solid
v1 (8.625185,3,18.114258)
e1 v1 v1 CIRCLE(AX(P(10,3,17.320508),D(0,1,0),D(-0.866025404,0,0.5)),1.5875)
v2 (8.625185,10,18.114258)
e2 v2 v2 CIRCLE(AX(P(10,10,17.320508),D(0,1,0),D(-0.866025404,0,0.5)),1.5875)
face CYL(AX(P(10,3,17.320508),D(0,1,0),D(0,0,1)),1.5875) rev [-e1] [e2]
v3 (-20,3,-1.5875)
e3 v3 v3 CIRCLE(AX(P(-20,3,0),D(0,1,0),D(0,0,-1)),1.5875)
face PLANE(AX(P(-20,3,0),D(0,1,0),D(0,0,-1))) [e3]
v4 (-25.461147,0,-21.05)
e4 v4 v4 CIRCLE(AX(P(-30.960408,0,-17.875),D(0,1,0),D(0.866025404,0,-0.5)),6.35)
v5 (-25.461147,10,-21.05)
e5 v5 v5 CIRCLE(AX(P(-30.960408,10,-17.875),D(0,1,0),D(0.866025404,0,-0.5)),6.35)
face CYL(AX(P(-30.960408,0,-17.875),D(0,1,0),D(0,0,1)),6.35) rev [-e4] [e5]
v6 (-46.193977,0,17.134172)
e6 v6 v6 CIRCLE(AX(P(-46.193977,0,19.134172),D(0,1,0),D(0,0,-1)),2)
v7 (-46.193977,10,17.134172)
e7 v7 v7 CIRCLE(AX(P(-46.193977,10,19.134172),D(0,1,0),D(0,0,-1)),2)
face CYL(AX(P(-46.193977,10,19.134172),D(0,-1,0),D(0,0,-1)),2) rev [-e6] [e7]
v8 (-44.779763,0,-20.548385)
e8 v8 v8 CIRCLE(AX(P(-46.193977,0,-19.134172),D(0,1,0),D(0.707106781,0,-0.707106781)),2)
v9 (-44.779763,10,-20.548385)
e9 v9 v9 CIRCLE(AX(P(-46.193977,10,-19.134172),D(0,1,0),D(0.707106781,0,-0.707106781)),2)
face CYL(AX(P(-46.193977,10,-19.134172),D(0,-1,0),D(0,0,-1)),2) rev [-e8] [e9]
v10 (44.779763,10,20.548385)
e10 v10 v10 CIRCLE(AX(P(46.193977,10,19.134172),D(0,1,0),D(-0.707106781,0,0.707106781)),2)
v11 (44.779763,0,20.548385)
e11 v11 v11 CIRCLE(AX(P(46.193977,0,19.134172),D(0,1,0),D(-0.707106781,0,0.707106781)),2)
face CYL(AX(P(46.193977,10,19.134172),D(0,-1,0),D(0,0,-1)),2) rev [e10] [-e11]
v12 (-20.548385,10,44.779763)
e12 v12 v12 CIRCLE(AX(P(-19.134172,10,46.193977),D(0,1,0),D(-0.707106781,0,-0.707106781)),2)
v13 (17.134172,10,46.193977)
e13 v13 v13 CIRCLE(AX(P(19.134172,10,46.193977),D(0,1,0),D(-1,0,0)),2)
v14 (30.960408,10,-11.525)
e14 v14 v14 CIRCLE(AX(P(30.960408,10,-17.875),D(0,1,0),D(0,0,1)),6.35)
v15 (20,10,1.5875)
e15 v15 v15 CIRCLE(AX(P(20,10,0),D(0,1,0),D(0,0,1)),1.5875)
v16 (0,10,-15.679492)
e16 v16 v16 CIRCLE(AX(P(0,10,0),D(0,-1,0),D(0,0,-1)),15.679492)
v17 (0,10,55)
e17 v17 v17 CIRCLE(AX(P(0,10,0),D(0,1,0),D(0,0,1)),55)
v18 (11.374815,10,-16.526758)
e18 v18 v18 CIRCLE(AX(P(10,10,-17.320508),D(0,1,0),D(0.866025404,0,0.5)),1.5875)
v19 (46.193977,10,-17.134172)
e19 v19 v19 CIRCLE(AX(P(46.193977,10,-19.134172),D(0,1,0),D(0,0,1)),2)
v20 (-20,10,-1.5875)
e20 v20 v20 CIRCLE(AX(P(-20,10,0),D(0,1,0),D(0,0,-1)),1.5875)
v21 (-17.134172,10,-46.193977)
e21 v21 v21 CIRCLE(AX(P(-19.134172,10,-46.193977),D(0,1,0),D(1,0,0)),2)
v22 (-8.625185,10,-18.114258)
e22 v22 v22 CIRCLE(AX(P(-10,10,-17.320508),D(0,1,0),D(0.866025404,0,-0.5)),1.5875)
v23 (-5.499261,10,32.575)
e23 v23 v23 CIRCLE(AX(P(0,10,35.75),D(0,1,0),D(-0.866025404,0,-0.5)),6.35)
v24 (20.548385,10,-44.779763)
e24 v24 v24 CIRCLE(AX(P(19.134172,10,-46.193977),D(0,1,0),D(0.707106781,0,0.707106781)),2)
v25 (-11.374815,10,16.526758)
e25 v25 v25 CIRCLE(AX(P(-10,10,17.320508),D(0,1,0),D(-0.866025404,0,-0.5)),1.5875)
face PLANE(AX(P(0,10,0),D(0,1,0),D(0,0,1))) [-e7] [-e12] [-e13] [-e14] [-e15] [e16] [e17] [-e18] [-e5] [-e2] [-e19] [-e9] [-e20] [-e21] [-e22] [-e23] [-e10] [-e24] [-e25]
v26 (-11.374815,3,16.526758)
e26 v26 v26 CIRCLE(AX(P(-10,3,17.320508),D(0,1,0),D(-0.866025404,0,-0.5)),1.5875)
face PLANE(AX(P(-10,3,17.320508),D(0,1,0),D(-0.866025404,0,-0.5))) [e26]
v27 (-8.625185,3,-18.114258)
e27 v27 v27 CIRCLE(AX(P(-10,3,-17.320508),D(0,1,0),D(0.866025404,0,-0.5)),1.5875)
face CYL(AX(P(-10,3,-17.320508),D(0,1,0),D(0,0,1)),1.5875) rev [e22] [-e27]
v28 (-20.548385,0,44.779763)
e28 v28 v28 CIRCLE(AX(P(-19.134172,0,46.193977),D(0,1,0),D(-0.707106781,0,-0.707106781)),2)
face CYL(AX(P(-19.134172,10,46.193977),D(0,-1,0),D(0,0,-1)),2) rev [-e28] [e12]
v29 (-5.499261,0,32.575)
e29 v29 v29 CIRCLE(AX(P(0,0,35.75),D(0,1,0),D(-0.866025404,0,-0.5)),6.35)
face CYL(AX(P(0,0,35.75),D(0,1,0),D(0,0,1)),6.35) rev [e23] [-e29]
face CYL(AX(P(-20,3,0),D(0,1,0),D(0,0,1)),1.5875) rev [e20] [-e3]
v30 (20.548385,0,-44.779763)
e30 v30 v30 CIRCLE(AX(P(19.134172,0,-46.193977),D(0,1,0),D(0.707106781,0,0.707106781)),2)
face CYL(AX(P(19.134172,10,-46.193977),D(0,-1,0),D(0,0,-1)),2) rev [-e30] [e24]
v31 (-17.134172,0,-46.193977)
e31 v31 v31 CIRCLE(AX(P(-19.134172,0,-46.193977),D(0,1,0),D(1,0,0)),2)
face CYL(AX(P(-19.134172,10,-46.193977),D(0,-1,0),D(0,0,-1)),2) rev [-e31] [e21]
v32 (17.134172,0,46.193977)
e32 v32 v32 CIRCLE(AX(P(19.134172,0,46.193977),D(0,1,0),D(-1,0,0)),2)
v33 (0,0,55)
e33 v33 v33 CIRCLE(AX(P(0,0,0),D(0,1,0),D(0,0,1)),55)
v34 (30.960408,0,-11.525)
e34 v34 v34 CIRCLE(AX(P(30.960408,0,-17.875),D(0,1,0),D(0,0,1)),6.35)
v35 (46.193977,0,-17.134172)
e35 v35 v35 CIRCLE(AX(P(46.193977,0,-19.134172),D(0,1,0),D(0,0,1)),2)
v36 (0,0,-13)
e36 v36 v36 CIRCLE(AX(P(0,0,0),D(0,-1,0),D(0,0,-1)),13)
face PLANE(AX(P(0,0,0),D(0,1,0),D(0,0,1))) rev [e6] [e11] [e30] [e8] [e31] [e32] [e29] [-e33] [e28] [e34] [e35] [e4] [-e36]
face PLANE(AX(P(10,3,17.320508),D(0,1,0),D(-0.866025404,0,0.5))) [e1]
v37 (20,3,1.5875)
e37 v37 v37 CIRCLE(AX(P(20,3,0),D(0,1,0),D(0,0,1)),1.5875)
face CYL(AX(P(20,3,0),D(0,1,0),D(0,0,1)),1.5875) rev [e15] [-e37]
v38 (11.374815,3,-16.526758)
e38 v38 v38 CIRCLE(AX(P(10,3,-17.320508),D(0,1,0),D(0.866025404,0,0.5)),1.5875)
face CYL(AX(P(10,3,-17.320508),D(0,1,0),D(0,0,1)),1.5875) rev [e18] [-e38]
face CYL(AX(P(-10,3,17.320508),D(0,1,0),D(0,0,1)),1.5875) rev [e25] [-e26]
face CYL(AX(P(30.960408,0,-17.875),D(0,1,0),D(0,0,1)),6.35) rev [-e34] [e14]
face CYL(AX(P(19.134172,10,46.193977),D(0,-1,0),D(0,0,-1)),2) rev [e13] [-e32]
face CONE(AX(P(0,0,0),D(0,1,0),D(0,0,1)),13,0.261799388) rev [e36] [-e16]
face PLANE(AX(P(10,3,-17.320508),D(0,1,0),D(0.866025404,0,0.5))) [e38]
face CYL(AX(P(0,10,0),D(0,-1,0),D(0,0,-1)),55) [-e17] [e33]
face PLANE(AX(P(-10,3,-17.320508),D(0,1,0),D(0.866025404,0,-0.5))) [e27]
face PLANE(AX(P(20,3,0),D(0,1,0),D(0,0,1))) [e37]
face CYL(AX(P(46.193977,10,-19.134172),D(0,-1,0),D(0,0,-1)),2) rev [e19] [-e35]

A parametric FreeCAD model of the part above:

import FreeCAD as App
import Part
import Sketcher
from FreeCAD import Vector
Q = App.Units.Quantity

doc = App.newDocument("Part")
body = doc.addObject("PartDesign::Body", "Body")

sketch1 = doc.addObject("Sketcher::SketchObject", "Sketch")
body.addObject(sketch1)
sketch1.AttachmentSupport = (doc.XZ_Plane, [""])
sketch1.MapMode = "FlatFace"
sketch1.addGeometry(Part.Circle(Vector(0, 0, 0), Vector(0, 0, 1), 55), False)
sketch1.addConstraint([
    Sketcher.Constraint("Coincident", 0, 3, -1, 1),
    Sketcher.Constraint("Diameter", 0, 110.0),
])
pad1 = doc.addObject("PartDesign::Pad", "Pad")
body.addObject(pad1)
pad1.Profile = sketch1
pad1.Length = 10
pad1.Reversed = True

sketch2 = doc.addObject("Sketcher::SketchObject", "Sketch001")
body.addObject(sketch2)
sketch2.AttachmentSupport = (doc.XY_Plane, [""])
sketch2.MapMode = "FlatFace"
sketch2.addGeometry([
    Part.LineSegment(Vector(0, 10, 0), Vector(0, 0, 0)),
    Part.LineSegment(Vector(0, 0, 0), Vector(13, 0, 0)),
    Part.LineSegment(Vector(13, 0, 0), Vector(16, 10, 0)),
    Part.LineSegment(Vector(16, 10, 0), Vector(0, 10, 0)),
], False)
sketch2.addConstraint([
    Sketcher.Constraint("Coincident", 0, 2, 1, 1),
    Sketcher.Constraint("Coincident", 1, 2, 2, 1),
    Sketcher.Constraint("Coincident", 2, 2, 3, 1),
    Sketcher.Constraint("Coincident", 3, 2, 0, 1),
    Sketcher.Constraint("Vertical", 0),
    Sketcher.Constraint("Horizontal", 1),
    Sketcher.Constraint("Horizontal", 3),
    Sketcher.Constraint("Coincident", 0, 2, -1, 1),
    Sketcher.Constraint("DistanceX", 1, 1, 1, 2, 13.0),
    Sketcher.Constraint("DistanceY", 0, 2, 0, 1, 10.0),
    Sketcher.Constraint("Angle", 2, Q("75 deg")),
])
groove = doc.addObject("PartDesign::Groove", "Groove")
body.addObject(groove)
groove.Profile = sketch2
groove.ReferenceAxis = (sketch2, ["V_Axis"])
groove.Angle = 360

sketch3 = doc.addObject("Sketcher::SketchObject", "Sketch002")
body.addObject(sketch3)
sketch3.AttachmentSupport = (doc.XZ_Plane, [""])
sketch3.MapMode = "FlatFace"
sketch3.addGeometry(Part.Circle(Vector(46.2, -19.1, 0), Vector(0, 0, 1), 2), False)
sketch3.addConstraint([
    Sketcher.Constraint("Diameter", 0, 4.0),
    Sketcher.Constraint("DistanceY", 0, 3, -1, 1, 19.134172),
    Sketcher.Constraint("DistanceX", -1, 1, 0, 3, 46.193977),
])
pocket1 = doc.addObject("PartDesign::Pocket", "Pocket")
body.addObject(pocket1)
pocket1.Profile = sketch3
pocket1.Type = "ThroughAll"
doc.recompute()

polarpattern = doc.addObject("PartDesign::PolarPattern", "PolarPattern")
body.addObject(polarpattern)
polarpattern.Originals = [pocket1]
polarpattern.Axis = (doc.Y_Axis, [""])
polarpattern.Angle = 360
polarpattern.Occurrences = 8
body.Tip = polarpattern

sketch4 = doc.addObject("Sketcher::SketchObject", "Sketch003")
body.addObject(sketch4)
sketch4.AttachmentSupport = (doc.XZ_Plane, [""])
sketch4.MapMode = "FlatFace"
sketch4.AttachmentOffset = App.Placement(Vector(0, 0, -10), App.Rotation())
sketch4.addGeometry(Part.Circle(Vector(31, -18, 0), Vector(0, 0, 1), 6), False)
sketch4.addConstraint([
    Sketcher.Constraint("Diameter", 0, 12.7),
    Sketcher.Constraint("DistanceY", 0, 3, -1, 1, 17.875),
    Sketcher.Constraint("DistanceX", -1, 1, 0, 3, 30.960408),
])
pocket2 = doc.addObject("PartDesign::Pocket", "Pocket001")
body.addObject(pocket2)
pocket2.Profile = sketch4
pocket2.Type = "ThroughAll"
pocket2.Reversed = True
doc.recompute()

polarpattern2 = doc.addObject("PartDesign::PolarPattern", "PolarPattern001")
body.addObject(polarpattern2)
polarpattern2.Originals = [pocket2]
polarpattern2.Axis = (doc.Y_Axis, [""])
polarpattern2.Angle = 360
polarpattern2.Occurrences = 3
body.Tip = polarpattern2

sketch5 = doc.addObject("Sketcher::SketchObject", "Sketch004")
body.addObject(sketch5)
sketch5.AttachmentSupport = (doc.XZ_Plane, [""])
sketch5.MapMode = "FlatFace"
sketch5.AttachmentOffset = App.Placement(Vector(0, 0, -10), App.Rotation())
sketch5.addGeometry(Part.Circle(Vector(20, 0, 0), Vector(0, 0, 1), 1.6), False)
sketch5.addConstraint([
    Sketcher.Constraint("PointOnObject", 0, 3, -1),
    Sketcher.Constraint("Diameter", 0, 3.175),
    Sketcher.Constraint("DistanceX", -1, 1, 0, 3, 20.0),
])
pocket3 = doc.addObject("PartDesign::Pocket", "Pocket002")
body.addObject(pocket3)
pocket3.Profile = sketch5
pocket3.Length = 7
pocket3.Reversed = True
doc.recompute()

polarpattern3 = doc.addObject("PartDesign::PolarPattern", "PolarPattern002")
body.addObject(polarpattern3)
polarpattern3.Originals = [pocket3]
polarpattern3.Axis = (doc.Y_Axis, [""])
polarpattern3.Angle = 360
polarpattern3.Occurrences = 6
body.Tip = polarpattern3

doc.recompute()
